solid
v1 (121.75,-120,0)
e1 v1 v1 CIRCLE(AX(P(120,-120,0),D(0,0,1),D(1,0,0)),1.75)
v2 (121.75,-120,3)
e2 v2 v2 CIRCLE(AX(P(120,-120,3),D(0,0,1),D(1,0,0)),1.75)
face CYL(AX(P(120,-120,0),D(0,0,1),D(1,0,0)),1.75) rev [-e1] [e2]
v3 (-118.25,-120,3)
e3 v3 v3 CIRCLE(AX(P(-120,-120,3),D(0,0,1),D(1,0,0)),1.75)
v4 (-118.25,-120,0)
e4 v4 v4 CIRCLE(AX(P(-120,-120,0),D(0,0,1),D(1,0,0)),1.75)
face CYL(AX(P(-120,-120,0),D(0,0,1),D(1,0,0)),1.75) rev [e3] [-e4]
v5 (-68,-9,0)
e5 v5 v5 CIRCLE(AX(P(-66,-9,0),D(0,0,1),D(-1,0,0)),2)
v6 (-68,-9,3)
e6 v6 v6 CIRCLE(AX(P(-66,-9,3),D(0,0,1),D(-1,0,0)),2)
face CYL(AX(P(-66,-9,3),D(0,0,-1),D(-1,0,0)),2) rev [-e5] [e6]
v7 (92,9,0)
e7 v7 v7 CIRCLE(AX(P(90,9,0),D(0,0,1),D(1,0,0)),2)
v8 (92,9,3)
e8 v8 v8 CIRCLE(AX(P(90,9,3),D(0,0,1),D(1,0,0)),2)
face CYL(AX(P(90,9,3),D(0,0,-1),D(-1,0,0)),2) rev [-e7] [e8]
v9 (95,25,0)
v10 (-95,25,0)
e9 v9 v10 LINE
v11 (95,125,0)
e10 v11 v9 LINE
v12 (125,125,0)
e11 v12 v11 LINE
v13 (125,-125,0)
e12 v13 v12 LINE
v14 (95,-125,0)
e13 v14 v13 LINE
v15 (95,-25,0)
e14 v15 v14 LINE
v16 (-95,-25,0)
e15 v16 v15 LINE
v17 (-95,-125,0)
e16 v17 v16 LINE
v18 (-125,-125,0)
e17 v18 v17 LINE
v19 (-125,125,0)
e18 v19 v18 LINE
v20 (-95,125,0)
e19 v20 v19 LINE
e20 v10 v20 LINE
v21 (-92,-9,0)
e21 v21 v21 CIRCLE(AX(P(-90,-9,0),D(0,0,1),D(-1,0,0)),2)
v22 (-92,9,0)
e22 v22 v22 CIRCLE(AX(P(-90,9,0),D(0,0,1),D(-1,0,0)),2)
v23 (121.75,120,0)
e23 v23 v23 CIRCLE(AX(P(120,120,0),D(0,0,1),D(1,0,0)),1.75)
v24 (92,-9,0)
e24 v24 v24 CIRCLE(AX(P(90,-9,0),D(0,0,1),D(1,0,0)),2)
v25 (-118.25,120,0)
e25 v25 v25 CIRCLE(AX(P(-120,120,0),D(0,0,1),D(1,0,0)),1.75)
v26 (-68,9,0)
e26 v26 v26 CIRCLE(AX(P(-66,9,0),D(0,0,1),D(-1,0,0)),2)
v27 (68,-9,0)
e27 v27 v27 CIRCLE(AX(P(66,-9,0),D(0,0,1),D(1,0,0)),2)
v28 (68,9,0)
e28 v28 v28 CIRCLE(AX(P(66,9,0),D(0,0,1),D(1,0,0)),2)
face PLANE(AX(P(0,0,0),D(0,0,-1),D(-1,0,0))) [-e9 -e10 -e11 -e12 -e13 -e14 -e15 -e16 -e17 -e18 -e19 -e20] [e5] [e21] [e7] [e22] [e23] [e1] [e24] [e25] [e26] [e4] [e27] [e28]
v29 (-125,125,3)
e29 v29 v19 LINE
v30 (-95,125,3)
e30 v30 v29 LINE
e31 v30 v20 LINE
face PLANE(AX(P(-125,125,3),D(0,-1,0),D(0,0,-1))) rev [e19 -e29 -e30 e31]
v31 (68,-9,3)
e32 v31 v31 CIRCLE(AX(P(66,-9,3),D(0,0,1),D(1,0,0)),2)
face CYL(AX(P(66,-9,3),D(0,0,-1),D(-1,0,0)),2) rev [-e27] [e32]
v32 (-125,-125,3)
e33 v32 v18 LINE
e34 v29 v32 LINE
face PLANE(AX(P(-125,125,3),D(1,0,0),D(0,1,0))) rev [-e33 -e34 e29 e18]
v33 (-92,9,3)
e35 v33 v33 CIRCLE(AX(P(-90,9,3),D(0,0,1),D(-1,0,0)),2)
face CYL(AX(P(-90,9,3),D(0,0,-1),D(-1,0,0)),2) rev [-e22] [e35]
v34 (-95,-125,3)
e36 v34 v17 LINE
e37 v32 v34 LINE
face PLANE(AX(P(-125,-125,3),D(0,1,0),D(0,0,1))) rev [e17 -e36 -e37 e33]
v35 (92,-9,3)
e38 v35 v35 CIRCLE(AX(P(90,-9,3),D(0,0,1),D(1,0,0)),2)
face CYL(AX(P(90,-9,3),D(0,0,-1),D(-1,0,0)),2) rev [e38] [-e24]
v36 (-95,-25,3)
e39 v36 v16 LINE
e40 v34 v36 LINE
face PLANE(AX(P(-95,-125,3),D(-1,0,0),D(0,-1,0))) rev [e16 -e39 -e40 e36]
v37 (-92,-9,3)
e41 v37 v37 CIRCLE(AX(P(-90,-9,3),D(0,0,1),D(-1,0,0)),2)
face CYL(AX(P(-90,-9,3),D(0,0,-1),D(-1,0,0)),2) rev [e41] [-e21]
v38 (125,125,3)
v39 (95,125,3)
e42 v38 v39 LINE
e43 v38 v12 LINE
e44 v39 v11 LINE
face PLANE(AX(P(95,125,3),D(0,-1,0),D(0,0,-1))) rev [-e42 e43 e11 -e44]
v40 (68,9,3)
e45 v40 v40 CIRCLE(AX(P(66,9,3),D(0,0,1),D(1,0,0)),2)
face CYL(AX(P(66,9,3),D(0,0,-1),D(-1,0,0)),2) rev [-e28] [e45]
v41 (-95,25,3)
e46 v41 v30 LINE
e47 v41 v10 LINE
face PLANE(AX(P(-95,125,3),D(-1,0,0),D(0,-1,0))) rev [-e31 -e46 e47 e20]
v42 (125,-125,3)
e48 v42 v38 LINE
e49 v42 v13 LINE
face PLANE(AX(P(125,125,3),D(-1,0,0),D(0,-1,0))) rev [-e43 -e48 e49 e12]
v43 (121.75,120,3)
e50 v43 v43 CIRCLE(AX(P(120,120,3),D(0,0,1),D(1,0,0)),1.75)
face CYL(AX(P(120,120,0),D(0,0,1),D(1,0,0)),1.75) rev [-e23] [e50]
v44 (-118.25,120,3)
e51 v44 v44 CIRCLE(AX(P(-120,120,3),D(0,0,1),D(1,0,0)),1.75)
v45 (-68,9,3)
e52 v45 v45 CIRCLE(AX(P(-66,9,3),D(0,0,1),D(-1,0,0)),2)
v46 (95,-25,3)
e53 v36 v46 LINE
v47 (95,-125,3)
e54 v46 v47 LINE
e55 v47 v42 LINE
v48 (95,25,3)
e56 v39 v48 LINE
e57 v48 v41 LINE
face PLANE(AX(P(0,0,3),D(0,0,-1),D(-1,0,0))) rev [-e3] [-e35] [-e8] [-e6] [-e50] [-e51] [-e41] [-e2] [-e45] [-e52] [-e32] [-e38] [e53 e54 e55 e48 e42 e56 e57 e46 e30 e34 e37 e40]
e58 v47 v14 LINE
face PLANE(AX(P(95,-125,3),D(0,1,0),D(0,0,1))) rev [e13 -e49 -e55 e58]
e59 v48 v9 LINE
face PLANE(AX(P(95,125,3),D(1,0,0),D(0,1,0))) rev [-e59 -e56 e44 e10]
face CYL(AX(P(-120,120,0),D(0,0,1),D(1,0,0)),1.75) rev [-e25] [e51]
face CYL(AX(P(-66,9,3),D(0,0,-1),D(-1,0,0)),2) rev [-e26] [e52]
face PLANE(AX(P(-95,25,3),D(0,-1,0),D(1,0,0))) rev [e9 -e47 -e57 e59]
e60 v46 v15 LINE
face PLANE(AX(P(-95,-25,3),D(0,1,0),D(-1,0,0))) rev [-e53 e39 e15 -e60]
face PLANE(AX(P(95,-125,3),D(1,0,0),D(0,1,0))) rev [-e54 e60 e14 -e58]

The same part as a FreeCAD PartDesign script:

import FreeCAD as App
import Part
import Sketcher

V = App.Vector

doc = App.newDocument("Part")
body = doc.addObject("PartDesign::Body", "Body")

# Sketch on XY plane
sketch1 = body.newObject("Sketcher::SketchObject", "Sketch")
sketch1.AttachmentSupport = (doc.getObject("XY_Plane"), [""])
sketch1.MapMode = "FlatFace"
sketch1.addGeometry(Part.LineSegment(V(125, 125, 0), V(95, 125, 0)), False)
sketch1.addGeometry(Part.LineSegment(V(95, 125, 0), V(95, 25, 0)), False)
sketch1.addGeometry(Part.LineSegment(V(95, 25, 0), V(-95, 25, 0)), False)
sketch1.addGeometry(Part.LineSegment(V(-95, 25, 0), V(-95, 125, 0)), False)
sketch1.addGeometry(Part.LineSegment(V(-95, 125, 0), V(-125, 125, 0)), False)
sketch1.addGeometry(Part.LineSegment(V(-125, 125, 0), V(-125, -125, 0)), False)
sketch1.addGeometry(Part.LineSegment(V(-125, -125, 0), V(-95, -125, 0)), False)
sketch1.addGeometry(Part.LineSegment(V(-95, -125, 0), V(-95, -25, 0)), False)
sketch1.addGeometry(Part.LineSegment(V(-95, -25, 0), V(95, -25, 0)), False)
sketch1.addGeometry(Part.LineSegment(V(95, -25, 0), V(95, -125, 0)), False)
sketch1.addGeometry(Part.LineSegment(V(95, -125, 0), V(125, -125, 0)), False)
sketch1.addGeometry(Part.LineSegment(V(125, -125, 0), V(125, 125, 0)), False)
sketch1.addGeometry(Part.Circle(V(90, -9, 0), V(0, 0, 1), 2), False)
sketch1.addGeometry(Part.Circle(V(66, -9, 0), V(0, 0, 1), 2), False)
sketch1.addGeometry(Part.Circle(V(-66, -9, 0), V(0, 0, 1), 2), False)
sketch1.addGeometry(Part.Circle(V(-90, -9, 0), V(0, 0, 1), 2), False)
sketch1.addGeometry(Part.Circle(V(90, 9, 0), V(0, 0, 1), 2), False)
sketch1.addGeometry(Part.Circle(V(66, 9, 0), V(0, 0, 1), 2), False)
sketch1.addGeometry(Part.Circle(V(-66, 9, 0), V(0, 0, 1), 2), False)
sketch1.addGeometry(Part.Circle(V(-90, 9, 0), V(0, 0, 1), 2), False)
sketch1.addConstraint(Sketcher.Constraint("Coincident", 0, 2, 1, 1))
sketch1.addConstraint(Sketcher.Constraint("Coincident", 1, 2, 2, 1))
sketch1.addConstraint(Sketcher.Constraint("Coincident", 2, 2, 3, 1))
sketch1.addConstraint(Sketcher.Constraint("Coincident", 3, 2, 4, 1))
sketch1.addConstraint(Sketcher.Constraint("Coincident", 4, 2, 5, 1))
sketch1.addConstraint(Sketcher.Constraint("Coincident", 5, 2, 6, 1))
sketch1.addConstraint(Sketcher.Constraint("Coincident", 6, 2, 7, 1))
sketch1.addConstraint(Sketcher.Constraint("Coincident", 7, 2, 8, 1))
sketch1.addConstraint(Sketcher.Constraint("Coincident", 8, 2, 9, 1))
sketch1.addConstraint(Sketcher.Constraint("Coincident", 9, 2, 10, 1))
sketch1.addConstraint(Sketcher.Constraint("Coincident", 10, 2, 11, 1))
sketch1.addConstraint(Sketcher.Constraint("Coincident", 11, 2, 0, 1))
sketch1.addConstraint(Sketcher.Constraint("Horizontal", 0))
sketch1.addConstraint(Sketcher.Constraint("Vertical", 1))
sketch1.addConstraint(Sketcher.Constraint("Horizontal", 2))
sketch1.addConstraint(Sketcher.Constraint("Vertical", 3))
sketch1.addConstraint(Sketcher.Constraint("Horizontal", 4))
sketch1.addConstraint(Sketcher.Constraint("Vertical", 5))
sketch1.addConstraint(Sketcher.Constraint("Horizontal", 6))
sketch1.addConstraint(Sketcher.Constraint("Vertical", 7))
sketch1.addConstraint(Sketcher.Constraint("Horizontal", 8))
sketch1.addConstraint(Sketcher.Constraint("Vertical", 9))
sketch1.addConstraint(Sketcher.Constraint("Horizontal", 10))
sketch1.addConstraint(Sketcher.Constraint("Vertical", 11))
sketch1.addConstraint(Sketcher.Constraint("Equal", 12, 13))
sketch1.addConstraint(Sketcher.Constraint("Equal", 13, 14))
sketch1.addConstraint(Sketcher.Constraint("Equal", 14, 15))
sketch1.addConstraint(Sketcher.Constraint("Equal", 15, 16))
sketch1.addConstraint(Sketcher.Constraint("Equal", 16, 17))
sketch1.addConstraint(Sketcher.Constraint("Equal", 17, 18))
sketch1.addConstraint(Sketcher.Constraint("Equal", 18, 19))
sketch1.addConstraint(Sketcher.Constraint("Symmetric", 15, 3, 16, 3, -1, 1))
sketch1.addConstraint(Sketcher.Constraint("Symmetric", 14, 3, 17, 3, -1, 1))
sketch1.addConstraint(Sketcher.Constraint("Symmetric", 13, 3, 18, 3, -1, 1))
sketch1.addConstraint(Sketcher.Constraint("Symmetric", 12, 3, 19, 3, -1, 1))
sketch1.addConstraint(Sketcher.Constraint("Symmetric", 0, 2, 6, 2, -1, 1))
sketch1.addConstraint(Sketcher.Constraint("Symmetric", 2, 2, 8, 2, -1, 1))
sketch1.addConstraint(Sketcher.Constraint("Symmetric", 4, 2, 10, 2, -1, 1))
sketch1.addConstraint(Sketcher.Constraint("Symmetric", 13, 3, 14, 3, -2))
sketch1.addConstraint(Sketcher.Constraint("Symmetric", 12, 3, 15, 3, -2))
sketch1.addConstraint(Sketcher.Constraint("Symmetric", 0, 2, 3, 2, -2))
sketch1.addConstraint(Sketcher.Constraint("Horizontal", 12, 3, 13, 3))
sketch1.addConstraint(Sketcher.Constraint("Diameter", 12, 4.0))
sketch1.addConstraint(Sketcher.Constraint("DistanceX", 0, 2, 0, 1, 30.0))
sketch1.addConstraint(Sketcher.Constraint("DistanceX", 2, 2, 2, 1, 190.0))
sketch1.addConstraint(Sketcher.Constraint("DistanceY", 1, 2, 1, 1, 100.0))
sketch1.addConstraint(Sketcher.Constraint("DistanceY", 5, 2, 5, 1, 250.0))
sketch1.addConstraint(Sketcher.Constraint("DistanceX", -1, 1, 12, 3, 90.0))
sketch1.addConstraint(Sketcher.Constraint("DistanceY", 12, 3, -1, 1, 9.0))
sketch1.addConstraint(Sketcher.Constraint("DistanceX", -1, 1, 13, 3, 66.0))
pad1 = body.newObject("PartDesign::Pad", "Pad")
pad1.Profile = sketch1
pad1.Length = 3

# Sketch on XY plane
sketch2 = body.newObject("Sketcher::SketchObject", "Sketch001")
sketch2.AttachmentSupport = (doc.getObject("XY_Plane"), [""])
sketch2.MapMode = "FlatFace"
sketch2.AttachmentOffset = App.Placement(V(0, 0, 3), App.Rotation())
sketch2.addGeometry(Part.Circle(V(-120, 120, 0), V(0, 0, 1), 1.8), False)
sketch2.addGeometry(Part.Circle(V(120, 120, 0), V(0, 0, 1), 1.8), False)
sketch2.addGeometry(Part.Circle(V(-120, -120, 0), V(0, 0, 1), 1.8), False)
sketch2.addGeometry(Part.Circle(V(120, -120, 0), V(0, 0, 1), 1.8), False)
sketch2.addConstraint(Sketcher.Constraint("Equal", 0, 1))
sketch2.addConstraint(Sketcher.Constraint("Equal", 1, 2))
sketch2.addConstraint(Sketcher.Constraint("Equal", 2, 3))
sketch2.addConstraint(Sketcher.Constraint("Symmetric", 1, 3, 2, 3, -1, 1))
sketch2.addConstraint(Sketcher.Constraint("Symmetric", 0, 3, 3, 3, -1, 1))
sketch2.addConstraint(Sketcher.Constraint("Symmetric", 0, 3, 1, 3, -2))
sketch2.addConstraint(Sketcher.Constraint("Diameter", 0, 3.5))
sketch2.addConstraint(Sketcher.Constraint("DistanceX", 0, 3, -1, 1, 120.0))
sketch2.addConstraint(Sketcher.Constraint("DistanceY", -1, 1, 0, 3, 120.0))
pocket1 = body.newObject("PartDesign::Pocket", "Pocket")
pocket1.Profile = sketch2
pocket1.Length = 3

doc.recompute()
